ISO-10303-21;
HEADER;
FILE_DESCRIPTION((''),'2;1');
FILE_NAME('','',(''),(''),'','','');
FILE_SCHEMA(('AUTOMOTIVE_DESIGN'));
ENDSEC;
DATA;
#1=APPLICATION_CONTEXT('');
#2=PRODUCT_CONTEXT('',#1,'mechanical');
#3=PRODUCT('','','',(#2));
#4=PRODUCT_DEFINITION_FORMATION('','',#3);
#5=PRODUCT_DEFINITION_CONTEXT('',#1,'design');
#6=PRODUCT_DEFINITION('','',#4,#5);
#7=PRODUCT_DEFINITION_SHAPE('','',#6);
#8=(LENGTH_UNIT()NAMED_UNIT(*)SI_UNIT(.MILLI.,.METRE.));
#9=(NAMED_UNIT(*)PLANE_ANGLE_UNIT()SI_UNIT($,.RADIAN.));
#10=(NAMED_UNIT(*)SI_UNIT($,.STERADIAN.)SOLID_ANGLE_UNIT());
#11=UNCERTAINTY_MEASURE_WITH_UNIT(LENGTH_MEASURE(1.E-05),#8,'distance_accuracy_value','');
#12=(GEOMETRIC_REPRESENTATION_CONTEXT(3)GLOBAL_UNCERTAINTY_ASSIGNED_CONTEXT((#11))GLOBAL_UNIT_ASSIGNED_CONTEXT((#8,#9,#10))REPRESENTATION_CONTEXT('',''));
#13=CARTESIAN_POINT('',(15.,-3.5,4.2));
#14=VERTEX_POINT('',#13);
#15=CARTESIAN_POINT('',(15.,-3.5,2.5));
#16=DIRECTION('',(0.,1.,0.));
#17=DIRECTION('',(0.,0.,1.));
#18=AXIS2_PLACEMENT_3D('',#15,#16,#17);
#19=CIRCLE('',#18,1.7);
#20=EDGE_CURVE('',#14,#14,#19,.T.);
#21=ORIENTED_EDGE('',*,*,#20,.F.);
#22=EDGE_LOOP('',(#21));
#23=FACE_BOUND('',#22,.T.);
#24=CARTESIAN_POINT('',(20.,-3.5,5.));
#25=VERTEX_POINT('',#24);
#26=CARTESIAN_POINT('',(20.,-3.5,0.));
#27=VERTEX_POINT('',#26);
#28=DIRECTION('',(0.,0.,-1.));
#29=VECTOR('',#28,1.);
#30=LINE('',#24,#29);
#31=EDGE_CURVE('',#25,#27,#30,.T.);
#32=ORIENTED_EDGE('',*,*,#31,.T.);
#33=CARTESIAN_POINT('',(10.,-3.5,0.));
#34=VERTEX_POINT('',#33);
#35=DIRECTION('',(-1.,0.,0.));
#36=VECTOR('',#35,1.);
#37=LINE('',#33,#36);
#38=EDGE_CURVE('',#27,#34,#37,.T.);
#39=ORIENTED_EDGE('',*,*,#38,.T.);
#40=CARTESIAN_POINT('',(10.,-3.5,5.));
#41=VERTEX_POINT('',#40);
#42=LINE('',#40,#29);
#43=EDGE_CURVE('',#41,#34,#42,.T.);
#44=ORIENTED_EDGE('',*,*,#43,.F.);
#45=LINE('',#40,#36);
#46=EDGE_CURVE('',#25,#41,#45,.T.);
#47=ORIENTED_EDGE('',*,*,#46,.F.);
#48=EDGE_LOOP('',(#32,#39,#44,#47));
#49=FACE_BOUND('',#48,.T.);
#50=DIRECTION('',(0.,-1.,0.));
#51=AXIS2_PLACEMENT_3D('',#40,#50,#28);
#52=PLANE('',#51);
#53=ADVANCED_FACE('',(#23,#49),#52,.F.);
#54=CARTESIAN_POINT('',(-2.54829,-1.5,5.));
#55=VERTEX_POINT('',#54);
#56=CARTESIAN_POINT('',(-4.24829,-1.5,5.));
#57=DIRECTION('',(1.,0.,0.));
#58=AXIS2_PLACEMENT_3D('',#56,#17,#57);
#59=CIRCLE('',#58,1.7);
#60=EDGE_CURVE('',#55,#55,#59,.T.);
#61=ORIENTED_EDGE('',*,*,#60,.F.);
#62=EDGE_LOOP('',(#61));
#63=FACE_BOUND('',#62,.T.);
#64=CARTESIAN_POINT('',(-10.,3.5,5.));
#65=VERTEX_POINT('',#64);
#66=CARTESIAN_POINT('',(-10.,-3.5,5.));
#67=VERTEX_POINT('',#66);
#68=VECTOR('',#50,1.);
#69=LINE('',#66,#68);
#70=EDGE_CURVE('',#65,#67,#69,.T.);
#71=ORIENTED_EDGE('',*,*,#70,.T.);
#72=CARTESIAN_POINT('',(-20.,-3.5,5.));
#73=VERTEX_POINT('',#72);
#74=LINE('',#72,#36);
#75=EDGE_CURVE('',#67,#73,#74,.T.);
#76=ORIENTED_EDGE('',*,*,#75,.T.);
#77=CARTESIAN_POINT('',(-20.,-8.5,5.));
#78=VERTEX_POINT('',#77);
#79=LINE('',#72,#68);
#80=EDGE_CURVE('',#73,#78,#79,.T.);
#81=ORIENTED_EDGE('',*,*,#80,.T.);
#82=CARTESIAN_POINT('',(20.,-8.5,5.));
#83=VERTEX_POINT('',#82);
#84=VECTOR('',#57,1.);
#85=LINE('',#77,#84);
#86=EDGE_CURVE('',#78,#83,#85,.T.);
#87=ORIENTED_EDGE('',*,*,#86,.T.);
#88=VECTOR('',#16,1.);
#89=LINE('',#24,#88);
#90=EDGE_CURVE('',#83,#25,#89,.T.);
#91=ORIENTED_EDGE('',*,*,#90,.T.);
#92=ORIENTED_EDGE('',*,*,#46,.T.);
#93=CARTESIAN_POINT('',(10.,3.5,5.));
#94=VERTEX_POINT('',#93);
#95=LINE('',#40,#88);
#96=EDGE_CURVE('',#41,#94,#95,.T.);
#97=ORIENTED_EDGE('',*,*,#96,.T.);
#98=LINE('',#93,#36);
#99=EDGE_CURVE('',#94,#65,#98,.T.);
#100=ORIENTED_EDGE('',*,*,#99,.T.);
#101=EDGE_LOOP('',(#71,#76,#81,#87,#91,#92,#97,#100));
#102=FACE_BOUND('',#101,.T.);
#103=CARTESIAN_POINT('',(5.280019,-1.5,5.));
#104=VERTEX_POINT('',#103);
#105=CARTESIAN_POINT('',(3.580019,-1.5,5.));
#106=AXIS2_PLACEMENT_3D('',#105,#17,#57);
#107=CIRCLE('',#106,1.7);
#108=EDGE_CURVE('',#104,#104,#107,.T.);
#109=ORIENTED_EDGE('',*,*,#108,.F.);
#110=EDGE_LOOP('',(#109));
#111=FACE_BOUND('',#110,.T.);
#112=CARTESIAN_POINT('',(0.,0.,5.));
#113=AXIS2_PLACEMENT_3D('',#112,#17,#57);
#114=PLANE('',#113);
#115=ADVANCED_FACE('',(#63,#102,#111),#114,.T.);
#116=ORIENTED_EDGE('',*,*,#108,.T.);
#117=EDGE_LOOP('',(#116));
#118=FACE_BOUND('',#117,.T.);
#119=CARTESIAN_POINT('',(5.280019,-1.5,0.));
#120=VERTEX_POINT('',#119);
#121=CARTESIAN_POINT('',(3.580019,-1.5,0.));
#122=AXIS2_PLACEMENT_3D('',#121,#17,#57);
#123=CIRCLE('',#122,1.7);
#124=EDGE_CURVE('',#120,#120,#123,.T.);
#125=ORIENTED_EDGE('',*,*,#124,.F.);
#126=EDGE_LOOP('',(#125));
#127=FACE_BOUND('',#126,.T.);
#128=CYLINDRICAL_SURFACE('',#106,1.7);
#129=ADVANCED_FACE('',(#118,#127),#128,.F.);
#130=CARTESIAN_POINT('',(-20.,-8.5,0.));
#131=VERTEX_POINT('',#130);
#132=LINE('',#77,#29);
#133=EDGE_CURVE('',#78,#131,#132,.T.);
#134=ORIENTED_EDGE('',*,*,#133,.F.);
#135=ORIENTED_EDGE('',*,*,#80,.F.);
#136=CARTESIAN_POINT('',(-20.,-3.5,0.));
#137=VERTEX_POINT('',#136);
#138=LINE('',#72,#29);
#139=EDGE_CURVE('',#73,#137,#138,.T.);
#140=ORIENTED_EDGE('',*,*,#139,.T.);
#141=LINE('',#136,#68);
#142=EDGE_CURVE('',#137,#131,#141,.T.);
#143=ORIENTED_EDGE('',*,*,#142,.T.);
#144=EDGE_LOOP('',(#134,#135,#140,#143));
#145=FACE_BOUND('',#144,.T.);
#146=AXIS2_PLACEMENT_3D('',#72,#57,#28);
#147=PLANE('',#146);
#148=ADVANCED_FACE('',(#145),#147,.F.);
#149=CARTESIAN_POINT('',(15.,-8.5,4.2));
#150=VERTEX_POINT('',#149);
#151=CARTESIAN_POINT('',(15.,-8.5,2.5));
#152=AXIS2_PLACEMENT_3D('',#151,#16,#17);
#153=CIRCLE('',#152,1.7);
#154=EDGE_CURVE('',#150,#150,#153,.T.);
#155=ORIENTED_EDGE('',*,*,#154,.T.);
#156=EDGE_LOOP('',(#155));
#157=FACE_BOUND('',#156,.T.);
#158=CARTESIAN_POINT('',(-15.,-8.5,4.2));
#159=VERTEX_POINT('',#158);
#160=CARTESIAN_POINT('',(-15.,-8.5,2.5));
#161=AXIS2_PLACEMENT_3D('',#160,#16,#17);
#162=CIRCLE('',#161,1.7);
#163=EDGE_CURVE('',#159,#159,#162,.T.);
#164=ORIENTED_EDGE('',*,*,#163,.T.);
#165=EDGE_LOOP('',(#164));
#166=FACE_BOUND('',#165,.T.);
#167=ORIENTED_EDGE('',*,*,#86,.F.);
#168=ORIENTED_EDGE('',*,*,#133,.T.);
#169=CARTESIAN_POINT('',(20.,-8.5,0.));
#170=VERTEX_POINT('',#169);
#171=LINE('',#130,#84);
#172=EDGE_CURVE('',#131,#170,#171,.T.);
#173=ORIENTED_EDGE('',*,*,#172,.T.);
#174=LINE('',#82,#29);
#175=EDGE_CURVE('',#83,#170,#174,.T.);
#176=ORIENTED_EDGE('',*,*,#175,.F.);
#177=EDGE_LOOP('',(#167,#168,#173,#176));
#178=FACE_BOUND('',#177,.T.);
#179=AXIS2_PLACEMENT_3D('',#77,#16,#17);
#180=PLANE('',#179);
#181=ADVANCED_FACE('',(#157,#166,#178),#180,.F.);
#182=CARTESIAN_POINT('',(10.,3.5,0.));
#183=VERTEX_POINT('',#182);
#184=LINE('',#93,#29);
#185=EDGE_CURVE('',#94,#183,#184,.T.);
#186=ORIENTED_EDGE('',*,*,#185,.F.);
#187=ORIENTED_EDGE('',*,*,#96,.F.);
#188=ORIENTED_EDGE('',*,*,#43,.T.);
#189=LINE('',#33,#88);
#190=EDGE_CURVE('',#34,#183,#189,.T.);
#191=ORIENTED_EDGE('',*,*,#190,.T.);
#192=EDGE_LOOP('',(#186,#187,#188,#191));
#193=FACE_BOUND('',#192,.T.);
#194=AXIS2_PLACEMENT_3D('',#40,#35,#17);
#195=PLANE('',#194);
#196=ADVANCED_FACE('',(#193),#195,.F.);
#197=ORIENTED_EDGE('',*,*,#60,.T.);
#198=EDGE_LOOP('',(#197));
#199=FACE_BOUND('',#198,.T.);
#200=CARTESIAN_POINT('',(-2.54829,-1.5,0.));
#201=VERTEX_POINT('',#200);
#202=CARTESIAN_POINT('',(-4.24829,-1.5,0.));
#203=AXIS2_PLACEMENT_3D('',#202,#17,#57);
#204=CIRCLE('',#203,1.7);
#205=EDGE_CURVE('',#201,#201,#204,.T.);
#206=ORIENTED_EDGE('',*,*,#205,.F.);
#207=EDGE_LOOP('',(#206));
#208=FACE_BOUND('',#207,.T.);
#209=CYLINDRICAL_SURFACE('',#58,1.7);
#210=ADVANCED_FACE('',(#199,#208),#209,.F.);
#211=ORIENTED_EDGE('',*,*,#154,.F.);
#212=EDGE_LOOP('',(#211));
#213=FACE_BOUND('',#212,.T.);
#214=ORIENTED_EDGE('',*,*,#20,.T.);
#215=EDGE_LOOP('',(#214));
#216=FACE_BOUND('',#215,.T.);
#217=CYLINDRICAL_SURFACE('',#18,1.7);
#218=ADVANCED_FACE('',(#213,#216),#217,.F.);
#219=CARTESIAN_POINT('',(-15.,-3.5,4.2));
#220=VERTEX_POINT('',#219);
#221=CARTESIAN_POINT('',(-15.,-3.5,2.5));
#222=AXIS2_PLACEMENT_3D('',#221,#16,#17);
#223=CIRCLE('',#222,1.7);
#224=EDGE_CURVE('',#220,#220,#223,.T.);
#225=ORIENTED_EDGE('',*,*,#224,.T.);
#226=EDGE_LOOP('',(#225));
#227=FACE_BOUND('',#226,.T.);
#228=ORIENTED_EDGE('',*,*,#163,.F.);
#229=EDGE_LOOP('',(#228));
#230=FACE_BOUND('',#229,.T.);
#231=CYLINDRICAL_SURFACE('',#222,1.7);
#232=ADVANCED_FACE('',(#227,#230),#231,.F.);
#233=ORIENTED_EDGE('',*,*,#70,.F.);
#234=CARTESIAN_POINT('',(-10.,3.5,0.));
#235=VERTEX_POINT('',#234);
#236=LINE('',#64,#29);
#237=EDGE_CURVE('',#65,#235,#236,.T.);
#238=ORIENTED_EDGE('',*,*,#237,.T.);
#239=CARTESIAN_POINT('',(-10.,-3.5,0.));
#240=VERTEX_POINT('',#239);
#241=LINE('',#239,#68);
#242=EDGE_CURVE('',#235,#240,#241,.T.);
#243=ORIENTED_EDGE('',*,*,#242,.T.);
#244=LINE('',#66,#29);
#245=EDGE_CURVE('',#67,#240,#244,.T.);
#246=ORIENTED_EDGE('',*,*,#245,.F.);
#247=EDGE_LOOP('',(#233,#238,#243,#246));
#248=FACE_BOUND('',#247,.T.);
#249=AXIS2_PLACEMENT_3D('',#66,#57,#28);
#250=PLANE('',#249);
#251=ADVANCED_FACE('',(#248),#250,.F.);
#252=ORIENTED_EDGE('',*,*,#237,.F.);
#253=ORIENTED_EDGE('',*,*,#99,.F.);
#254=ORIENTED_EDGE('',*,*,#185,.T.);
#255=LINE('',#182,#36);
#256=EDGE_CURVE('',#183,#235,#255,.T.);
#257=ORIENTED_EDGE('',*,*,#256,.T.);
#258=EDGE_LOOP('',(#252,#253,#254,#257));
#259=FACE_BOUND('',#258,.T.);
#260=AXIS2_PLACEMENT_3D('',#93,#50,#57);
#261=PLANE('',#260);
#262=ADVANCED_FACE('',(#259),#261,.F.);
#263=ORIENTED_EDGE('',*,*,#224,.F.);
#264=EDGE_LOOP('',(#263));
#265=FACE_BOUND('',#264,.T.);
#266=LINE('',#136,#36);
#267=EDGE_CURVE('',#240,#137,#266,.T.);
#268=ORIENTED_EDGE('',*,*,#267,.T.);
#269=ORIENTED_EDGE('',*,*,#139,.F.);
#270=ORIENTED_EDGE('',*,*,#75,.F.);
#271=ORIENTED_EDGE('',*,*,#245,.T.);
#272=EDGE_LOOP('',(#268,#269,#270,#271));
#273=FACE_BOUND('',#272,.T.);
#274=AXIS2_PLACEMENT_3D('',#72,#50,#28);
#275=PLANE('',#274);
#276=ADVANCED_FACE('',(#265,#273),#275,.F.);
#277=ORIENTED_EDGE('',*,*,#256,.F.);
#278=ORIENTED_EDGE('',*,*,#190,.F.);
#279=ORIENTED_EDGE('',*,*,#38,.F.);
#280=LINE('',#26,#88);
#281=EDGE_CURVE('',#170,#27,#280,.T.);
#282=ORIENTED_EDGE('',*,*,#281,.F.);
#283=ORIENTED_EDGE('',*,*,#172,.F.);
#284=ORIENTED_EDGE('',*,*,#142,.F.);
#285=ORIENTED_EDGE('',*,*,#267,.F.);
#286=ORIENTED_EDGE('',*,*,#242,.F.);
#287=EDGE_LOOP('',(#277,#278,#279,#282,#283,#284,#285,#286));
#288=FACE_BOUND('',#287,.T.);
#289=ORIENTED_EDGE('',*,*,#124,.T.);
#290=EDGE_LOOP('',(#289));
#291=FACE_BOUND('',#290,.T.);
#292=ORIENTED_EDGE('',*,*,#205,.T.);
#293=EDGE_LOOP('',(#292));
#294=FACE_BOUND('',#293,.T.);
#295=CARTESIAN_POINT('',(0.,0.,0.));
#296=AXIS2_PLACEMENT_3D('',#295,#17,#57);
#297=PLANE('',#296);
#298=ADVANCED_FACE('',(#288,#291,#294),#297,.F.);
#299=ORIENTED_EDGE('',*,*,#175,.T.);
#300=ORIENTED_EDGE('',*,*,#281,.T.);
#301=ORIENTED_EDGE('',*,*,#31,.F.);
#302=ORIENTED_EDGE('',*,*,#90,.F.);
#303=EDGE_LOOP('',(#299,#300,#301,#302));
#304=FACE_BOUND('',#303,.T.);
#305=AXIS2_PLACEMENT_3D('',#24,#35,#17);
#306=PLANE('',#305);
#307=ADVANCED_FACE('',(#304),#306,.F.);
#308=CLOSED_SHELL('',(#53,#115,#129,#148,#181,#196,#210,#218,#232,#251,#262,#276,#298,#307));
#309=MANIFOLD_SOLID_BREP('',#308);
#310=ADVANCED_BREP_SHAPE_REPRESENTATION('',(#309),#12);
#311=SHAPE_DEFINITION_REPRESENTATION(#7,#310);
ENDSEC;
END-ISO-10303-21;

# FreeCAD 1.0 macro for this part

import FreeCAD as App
import Part
import Sketcher
Q = App.Units.Quantity

doc = App.newDocument("Part")
params = doc.addObject("Spreadsheet::Sheet", "Params")
for row, (alias, value) in enumerate([
    ("sketch1_width", "10 mm"),
    ("sketch1_width2", "20 mm"),
    ("sketch1_height", "7 mm"),
    ("sketch1_height2", "5 mm"),
    ("pad1_length", "5 mm"),
    ("sketch2_diameter", "3.4 mm"),
    ("hole_diameter", "3.4 mm"),
    ("sketch3_diameter", "3.4 mm"),
    ("hole2_diameter", "3.4 mm"),
], start=1):
    params.set(f"A{row}", alias)
    params.set(f"B{row}", "=" + value)
    params.setAlias(f"B{row}", alias)

body = doc.addObject("PartDesign::Body", "Body")

# Sketch on XY plane
sketch1 = body.newObject("Sketcher::SketchObject", "Sketch")
sketch1.AttachmentSupport = (doc.getObject("XY_Plane"), [""])
sketch1.MapMode = "FlatFace"
sketch1.addGeometry([
    Part.LineSegment(App.Vector(20, -4, 0), App.Vector(10, -4, 0)),  # 0
    Part.LineSegment(App.Vector(10, -4, 0), App.Vector(10, 4, 0)),  # 1
    Part.LineSegment(App.Vector(10, 4, 0), App.Vector(-10, 4, 0)),  # 2
    Part.LineSegment(App.Vector(-10, 4, 0), App.Vector(-10, -4, 0)),  # 3
    Part.LineSegment(App.Vector(-10, -4, 0), App.Vector(-20, -4, 0)),  # 4
    Part.LineSegment(App.Vector(-20, -4, 0), App.Vector(-20, -8, 0)),  # 5
    Part.LineSegment(App.Vector(-20, -8, 0), App.Vector(20, -8, 0)),  # 6
    Part.LineSegment(App.Vector(20, -8, 0), App.Vector(20, -4, 0)),  # 7
], False)
sketch1.addConstraint([
    Sketcher.Constraint("Coincident", 0, 2, 1, 1),
    Sketcher.Constraint("Coincident", 1, 2, 2, 1),
    Sketcher.Constraint("Coincident", 2, 2, 3, 1),
    Sketcher.Constraint("Coincident", 3, 2, 4, 1),
    Sketcher.Constraint("Coincident", 4, 2, 5, 1),
    Sketcher.Constraint("Coincident", 5, 2, 6, 1),
    Sketcher.Constraint("Coincident", 6, 2, 7, 1),
    Sketcher.Constraint("Coincident", 7, 2, 0, 1),
    Sketcher.Constraint("Horizontal", 0),
    Sketcher.Constraint("Vertical", 1),
    Sketcher.Constraint("Horizontal", 2),
    Sketcher.Constraint("Vertical", 3),
    Sketcher.Constraint("Horizontal", 4),
    Sketcher.Constraint("Vertical", 5),
    Sketcher.Constraint("Horizontal", 6),
    Sketcher.Constraint("Vertical", 7),
    Sketcher.Constraint("Symmetric", 0, 2, 2, 2, -1, 1),
    Sketcher.Constraint("Symmetric", 4, 2, 7, 2, -2),
    Sketcher.Constraint("DistanceX", 0, 2, 0, 1, Q("10 mm")),
    Sketcher.Constraint("DistanceX", 2, 2, 2, 1, Q("20 mm")),
    Sketcher.Constraint("DistanceY", 1, 1, 1, 2, Q("7 mm")),
    Sketcher.Constraint("DistanceY", 5, 2, 5, 1, Q("5 mm")),
])
sketch1.setExpression("Constraints[18]", "Params.sketch1_width")
sketch1.setExpression("Constraints[19]", "Params.sketch1_width2")
sketch1.setExpression("Constraints[20]", "Params.sketch1_height")
sketch1.setExpression("Constraints[21]", "Params.sketch1_height2")
pad1 = body.newObject("PartDesign::Pad", "Pad")
pad1.Profile = sketch1
pad1.setExpression("Length", "Params.pad1_length")

# Sketch on XY plane
sketch2 = body.newObject("Sketcher::SketchObject", "Sketch001")
sketch2.AttachmentSupport = (doc.getObject("XY_Plane"), [""])
sketch2.MapMode = "FlatFace"
sketch2.AttachmentOffset = App.Placement(App.Vector(0, 0, 5), App.Rotation())
sketch2.addGeometry([
    Part.Circle(App.Vector(3.6, -1.5, 0), App.Vector(0, 0, 1), 1.7),
    Part.Circle(App.Vector(-4.2, -1.5, 0), App.Vector(0, 0, 1), 1.7),
], False)
sketch2.addConstraint([
    Sketcher.Constraint("Equal", 0, 1),
    Sketcher.Constraint("Horizontal", 0, 3, 1, 3),
    Sketcher.Constraint("Diameter", 0, Q("3.4 mm")),
    Sketcher.Constraint("DistanceY", 0, 3, -1, 1, Q("1.5 mm")),
    Sketcher.Constraint("DistanceX", -1, 1, 0, 3, Q("3.580019 mm")),
    Sketcher.Constraint("DistanceX", 1, 3, -1, 1, Q("4.24829 mm")),
])
sketch2.setExpression("Constraints[2]", "Params.sketch2_diameter")
doc.recompute()
hole = body.newObject("PartDesign::Hole", "Hole")
hole.Profile = sketch2
hole.ThreadType = "None"
hole.setExpression("Diameter", "Params.hole_diameter")
hole.DepthType = "ThroughAll"

# Sketch on XZ plane
sketch3 = body.newObject("Sketcher::SketchObject", "Sketch002")
sketch3.AttachmentSupport = (doc.getObject("XZ_Plane"), [""])
sketch3.MapMode = "FlatFace"
sketch3.AttachmentOffset = App.Placement(App.Vector(0, 0, 3.5), App.Rotation())
sketch3.addGeometry([
    Part.Circle(App.Vector(-15, 2.5, 0), App.Vector(0, 0, 1), 1.7),
    Part.Circle(App.Vector(15, 2.5, 0), App.Vector(0, 0, 1), 1.7),
], False)
sketch3.addConstraint([
    Sketcher.Constraint("Equal", 0, 1),
    Sketcher.Constraint("Symmetric", 0, 3, 1, 3, -2),
    Sketcher.Constraint("Diameter", 0, Q("3.4 mm")),
    Sketcher.Constraint("DistanceX", 0, 3, -1, 1, Q("15 mm")),
    Sketcher.Constraint("DistanceY", -1, 1, 0, 3, Q("2.5 mm")),
])
sketch3.setExpression("Constraints[2]", "Params.sketch3_diameter")
doc.recompute()
hole2 = body.newObject("PartDesign::Hole", "Hole001")
hole2.Profile = sketch3
hole2.ThreadType = "None"
hole2.setExpression("Diameter", "Params.hole2_diameter")
hole2.DepthType = "ThroughAll"
hole2.Reversed = True

doc.recompute()
